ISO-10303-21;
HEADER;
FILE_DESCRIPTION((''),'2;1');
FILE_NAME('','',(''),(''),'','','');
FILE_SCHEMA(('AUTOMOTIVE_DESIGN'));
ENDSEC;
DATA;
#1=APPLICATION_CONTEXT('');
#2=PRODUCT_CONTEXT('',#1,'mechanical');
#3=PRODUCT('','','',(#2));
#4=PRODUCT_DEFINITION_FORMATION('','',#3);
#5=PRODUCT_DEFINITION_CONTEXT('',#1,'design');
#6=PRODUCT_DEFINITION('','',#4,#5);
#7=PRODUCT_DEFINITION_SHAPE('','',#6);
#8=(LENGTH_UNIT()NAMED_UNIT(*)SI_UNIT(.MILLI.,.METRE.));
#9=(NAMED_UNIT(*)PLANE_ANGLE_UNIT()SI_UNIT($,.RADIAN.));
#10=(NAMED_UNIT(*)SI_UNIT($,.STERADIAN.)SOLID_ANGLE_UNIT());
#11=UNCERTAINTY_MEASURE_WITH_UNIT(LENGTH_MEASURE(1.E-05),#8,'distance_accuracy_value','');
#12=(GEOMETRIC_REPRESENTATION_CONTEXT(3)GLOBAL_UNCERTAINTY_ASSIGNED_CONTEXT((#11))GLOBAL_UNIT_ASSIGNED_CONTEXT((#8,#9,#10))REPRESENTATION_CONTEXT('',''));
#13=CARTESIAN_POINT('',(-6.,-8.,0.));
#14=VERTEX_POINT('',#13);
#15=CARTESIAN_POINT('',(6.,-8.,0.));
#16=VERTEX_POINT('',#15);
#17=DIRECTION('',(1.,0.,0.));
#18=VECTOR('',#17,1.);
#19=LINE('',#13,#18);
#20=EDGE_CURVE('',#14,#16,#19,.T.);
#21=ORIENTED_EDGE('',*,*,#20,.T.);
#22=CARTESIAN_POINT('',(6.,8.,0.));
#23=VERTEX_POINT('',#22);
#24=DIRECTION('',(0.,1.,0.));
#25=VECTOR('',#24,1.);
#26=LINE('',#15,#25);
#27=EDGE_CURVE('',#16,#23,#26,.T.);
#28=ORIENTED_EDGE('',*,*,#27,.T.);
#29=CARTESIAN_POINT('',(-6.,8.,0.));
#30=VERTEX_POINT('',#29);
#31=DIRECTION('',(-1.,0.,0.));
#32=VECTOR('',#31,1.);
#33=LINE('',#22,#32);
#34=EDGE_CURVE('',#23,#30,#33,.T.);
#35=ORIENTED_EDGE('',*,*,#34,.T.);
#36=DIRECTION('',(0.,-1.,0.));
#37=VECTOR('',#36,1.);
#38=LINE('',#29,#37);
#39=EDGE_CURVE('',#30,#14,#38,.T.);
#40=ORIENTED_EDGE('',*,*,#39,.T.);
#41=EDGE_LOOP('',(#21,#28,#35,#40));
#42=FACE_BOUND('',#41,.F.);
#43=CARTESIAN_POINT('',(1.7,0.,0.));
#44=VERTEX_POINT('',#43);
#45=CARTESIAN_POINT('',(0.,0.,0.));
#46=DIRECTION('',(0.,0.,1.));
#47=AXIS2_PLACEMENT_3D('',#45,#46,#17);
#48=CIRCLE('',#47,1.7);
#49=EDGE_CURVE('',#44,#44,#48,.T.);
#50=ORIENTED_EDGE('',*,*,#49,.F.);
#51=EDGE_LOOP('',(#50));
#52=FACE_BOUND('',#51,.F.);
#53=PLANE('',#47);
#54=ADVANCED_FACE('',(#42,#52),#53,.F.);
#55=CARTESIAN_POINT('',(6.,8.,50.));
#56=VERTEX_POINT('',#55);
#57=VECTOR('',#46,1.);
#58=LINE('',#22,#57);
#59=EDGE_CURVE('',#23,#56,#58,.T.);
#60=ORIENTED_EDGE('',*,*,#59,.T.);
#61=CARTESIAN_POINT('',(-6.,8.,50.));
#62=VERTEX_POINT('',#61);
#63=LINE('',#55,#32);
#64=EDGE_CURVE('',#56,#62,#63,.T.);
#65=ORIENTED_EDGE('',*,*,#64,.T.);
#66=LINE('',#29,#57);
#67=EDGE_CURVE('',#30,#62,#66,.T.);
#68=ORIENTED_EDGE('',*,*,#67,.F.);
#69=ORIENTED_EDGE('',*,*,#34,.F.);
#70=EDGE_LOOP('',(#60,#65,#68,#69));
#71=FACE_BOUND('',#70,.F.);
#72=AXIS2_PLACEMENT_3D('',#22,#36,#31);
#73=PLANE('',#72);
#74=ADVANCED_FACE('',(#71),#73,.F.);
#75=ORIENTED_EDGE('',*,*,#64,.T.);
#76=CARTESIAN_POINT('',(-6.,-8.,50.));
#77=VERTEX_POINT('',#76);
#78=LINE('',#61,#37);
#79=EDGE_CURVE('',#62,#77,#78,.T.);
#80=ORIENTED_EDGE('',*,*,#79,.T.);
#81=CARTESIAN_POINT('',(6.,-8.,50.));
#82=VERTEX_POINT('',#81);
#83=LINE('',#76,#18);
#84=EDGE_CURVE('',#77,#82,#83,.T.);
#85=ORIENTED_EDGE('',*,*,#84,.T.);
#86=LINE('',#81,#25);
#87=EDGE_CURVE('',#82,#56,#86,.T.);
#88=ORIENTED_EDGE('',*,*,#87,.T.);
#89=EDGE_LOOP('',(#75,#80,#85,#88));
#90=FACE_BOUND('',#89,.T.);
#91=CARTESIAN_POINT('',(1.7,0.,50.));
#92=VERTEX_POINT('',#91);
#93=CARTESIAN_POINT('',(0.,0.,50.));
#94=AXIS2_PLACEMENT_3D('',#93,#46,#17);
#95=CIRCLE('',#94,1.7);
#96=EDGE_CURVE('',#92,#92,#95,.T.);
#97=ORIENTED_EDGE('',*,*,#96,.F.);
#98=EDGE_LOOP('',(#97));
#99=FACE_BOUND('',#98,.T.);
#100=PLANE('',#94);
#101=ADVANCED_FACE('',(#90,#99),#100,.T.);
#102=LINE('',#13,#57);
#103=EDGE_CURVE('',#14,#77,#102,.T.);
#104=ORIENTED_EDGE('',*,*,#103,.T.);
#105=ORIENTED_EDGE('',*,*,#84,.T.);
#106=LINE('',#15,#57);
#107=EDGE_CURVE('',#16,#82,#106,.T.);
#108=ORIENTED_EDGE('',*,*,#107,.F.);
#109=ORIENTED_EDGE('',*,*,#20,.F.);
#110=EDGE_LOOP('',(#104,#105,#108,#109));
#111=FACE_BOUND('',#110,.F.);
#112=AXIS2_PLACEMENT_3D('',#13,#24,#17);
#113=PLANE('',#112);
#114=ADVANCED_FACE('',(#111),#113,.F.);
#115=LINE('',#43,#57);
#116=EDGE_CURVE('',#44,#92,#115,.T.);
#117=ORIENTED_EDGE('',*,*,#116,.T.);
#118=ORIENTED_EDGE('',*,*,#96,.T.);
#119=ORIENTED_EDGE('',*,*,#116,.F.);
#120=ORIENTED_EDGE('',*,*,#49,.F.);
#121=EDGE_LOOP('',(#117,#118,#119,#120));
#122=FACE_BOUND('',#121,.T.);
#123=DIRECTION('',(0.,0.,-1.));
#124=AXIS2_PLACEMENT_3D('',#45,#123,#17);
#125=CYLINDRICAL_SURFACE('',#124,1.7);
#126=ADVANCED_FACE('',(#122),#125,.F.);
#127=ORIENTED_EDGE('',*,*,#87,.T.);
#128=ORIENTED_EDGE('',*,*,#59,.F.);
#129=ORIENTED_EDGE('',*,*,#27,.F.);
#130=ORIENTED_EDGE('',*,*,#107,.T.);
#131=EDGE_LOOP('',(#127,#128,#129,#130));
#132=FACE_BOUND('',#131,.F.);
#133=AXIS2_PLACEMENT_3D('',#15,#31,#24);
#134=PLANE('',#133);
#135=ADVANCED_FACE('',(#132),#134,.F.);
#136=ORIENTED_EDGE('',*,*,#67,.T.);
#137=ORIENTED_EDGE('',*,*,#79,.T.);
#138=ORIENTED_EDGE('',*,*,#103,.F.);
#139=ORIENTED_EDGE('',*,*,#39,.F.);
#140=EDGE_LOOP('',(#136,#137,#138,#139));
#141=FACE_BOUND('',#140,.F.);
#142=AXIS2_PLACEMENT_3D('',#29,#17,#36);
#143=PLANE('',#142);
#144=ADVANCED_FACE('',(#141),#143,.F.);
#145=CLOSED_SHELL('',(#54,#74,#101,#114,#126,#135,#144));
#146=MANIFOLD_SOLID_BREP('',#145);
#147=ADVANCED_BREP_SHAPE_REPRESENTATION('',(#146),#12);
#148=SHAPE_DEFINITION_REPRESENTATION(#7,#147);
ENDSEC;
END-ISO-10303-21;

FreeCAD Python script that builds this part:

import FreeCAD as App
import Part
import Sketcher
from FreeCAD import Vector

doc = App.newDocument("Part")
body = doc.addObject("PartDesign::Body", "Body")

# Sketch on XY plane
sketch1 = body.newObject("Sketcher::SketchObject", "Sketch")
sketch1.AttachmentSupport = (doc.getObject("XY_Plane"), [""])
sketch1.MapMode = "FlatFace"
sketch1.addGeometry(Part.LineSegment(Vector(-6, 8, 0), Vector(-6, -8, 0)), False)
sketch1.addGeometry(Part.LineSegment(Vector(-6, -8, 0), Vector(6, -8, 0)), False)
sketch1.addGeometry(Part.LineSegment(Vector(6, -8, 0), Vector(6, 8, 0)), False)
sketch1.addGeometry(Part.LineSegment(Vector(6, 8, 0), Vector(-6, 8, 0)), False)
sketch1.addGeometry(Part.Circle(Vector(0, 0, 0), Vector(0, 0, 1), 1.7), False)
sketch1.addConstraint(Sketcher.Constraint("Coincident", 0, 2, 1, 1))
sketch1.addConstraint(Sketcher.Constraint("Coincident", 1, 2, 2, 1))
sketch1.addConstraint(Sketcher.Constraint("Coincident", 2, 2, 3, 1))
sketch1.addConstraint(Sketcher.Constraint("Coincident", 3, 2, 0, 1))
sketch1.addConstraint(Sketcher.Constraint("Vertical", 0))
sketch1.addConstraint(Sketcher.Constraint("Horizontal", 1))
sketch1.addConstraint(Sketcher.Constraint("Vertical", 2))
sketch1.addConstraint(Sketcher.Constraint("Horizontal", 3))
sketch1.addConstraint(Sketcher.Constraint("Coincident", 4, 3, -1, 1))
sketch1.addConstraint(Sketcher.Constraint("Symmetric", 0, 2, 2, 2, -1, 1))
sketch1.addConstraint(Sketcher.Constraint("Diameter", 4, 3.4))
sketch1.addConstraint(Sketcher.Constraint("DistanceX", 1, 1, 1, 2, 12.0))
sketch1.addConstraint(Sketcher.Constraint("DistanceY", 0, 2, 0, 1, 16.0))
pad1 = body.newObject("PartDesign::Pad", "Pad")
pad1.Profile = sketch1
pad1.Length = 50

doc.recompute()
